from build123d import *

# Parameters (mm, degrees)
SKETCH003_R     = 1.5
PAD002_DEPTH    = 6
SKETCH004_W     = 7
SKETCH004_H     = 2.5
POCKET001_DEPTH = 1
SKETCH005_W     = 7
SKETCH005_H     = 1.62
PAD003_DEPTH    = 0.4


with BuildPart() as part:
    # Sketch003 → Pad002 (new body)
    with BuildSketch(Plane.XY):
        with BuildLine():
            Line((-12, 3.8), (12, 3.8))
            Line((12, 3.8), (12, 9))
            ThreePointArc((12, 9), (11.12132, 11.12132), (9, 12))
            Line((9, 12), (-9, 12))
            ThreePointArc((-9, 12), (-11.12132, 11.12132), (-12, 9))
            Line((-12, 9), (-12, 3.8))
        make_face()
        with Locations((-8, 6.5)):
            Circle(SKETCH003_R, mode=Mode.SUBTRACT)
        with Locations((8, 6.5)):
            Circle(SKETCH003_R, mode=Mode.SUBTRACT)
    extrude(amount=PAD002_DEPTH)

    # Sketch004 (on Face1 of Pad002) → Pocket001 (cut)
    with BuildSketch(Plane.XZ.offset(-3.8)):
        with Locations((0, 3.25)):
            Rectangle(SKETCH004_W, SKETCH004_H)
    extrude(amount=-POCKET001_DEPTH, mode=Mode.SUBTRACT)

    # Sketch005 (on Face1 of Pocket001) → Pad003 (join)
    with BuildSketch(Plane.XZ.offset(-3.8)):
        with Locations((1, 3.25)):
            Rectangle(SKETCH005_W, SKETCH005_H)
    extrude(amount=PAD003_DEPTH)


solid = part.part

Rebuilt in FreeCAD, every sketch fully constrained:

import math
import FreeCAD as App
import Part
import Sketcher
from FreeCAD import Vector
Q = App.Units.Quantity

doc = App.newDocument("Part")
body = doc.addObject("PartDesign::Body", "Body")

# Sketch on XY plane
sketch1 = body.newObject("Sketcher::SketchObject", "Sketch")
sketch1.AttachmentSupport = (doc.getObject("XY_Plane"), [""])
sketch1.MapMode = "FlatFace"
sketch1.addGeometry([
    Part.LineSegment(Vector(-12, 3.8, 0), Vector(12, 3.8, 0)),  # 0
    Part.LineSegment(Vector(12, 3.8, 0), Vector(12, 9, 0)),  # 1
    Part.ArcOfCircle(Part.Circle(Vector(8.999999, 8.999999, 0), Vector(0, 0, 1), 3.000001), math.radians(0.000022), math.radians(89.999978)),  # 2
    Part.LineSegment(Vector(9, 12, 0), Vector(-9, 12, 0)),  # 3
    Part.ArcOfCircle(Part.Circle(Vector(-8.999999, 8.999999, 0), Vector(0, 0, 1), 3.000001), math.radians(90.000022), math.radians(179.999978)),  # 4
    Part.LineSegment(Vector(-12, 9, 0), Vector(-12, 3.8, 0)),  # 5
    Part.Circle(Vector(-8, 6.5, 0), Vector(0, 0, 1), 1.5),  # 6
    Part.Circle(Vector(8, 6.5, 0), Vector(0, 0, 1), 1.5),  # 7
], False)
sketch1.addConstraint([
    Sketcher.Constraint("Coincident", 0, 2, 1, 1),
    Sketcher.Constraint("Tangent", 1, 2, 2, 1),
    Sketcher.Constraint("Tangent", 2, 2, 3, 1),
    Sketcher.Constraint("Tangent", 3, 2, 4, 1),
    Sketcher.Constraint("Tangent", 4, 2, 5, 1),
    Sketcher.Constraint("Coincident", 5, 2, 0, 1),
    Sketcher.Constraint("Horizontal", 0),
    Sketcher.Constraint("Vertical", 1),
    Sketcher.Constraint("Horizontal", 3),
    Sketcher.Constraint("Vertical", 5),
    Sketcher.Constraint("Equal", 2, 4),
    Sketcher.Constraint("Equal", 6, 7),
    Sketcher.Constraint("Symmetric", 6, 3, 7, 3, -2),
    Sketcher.Constraint("Diameter", 6, Q("3 mm")),
    Sketcher.Constraint("Radius", 2, Q("3.000001 mm")),
    Sketcher.Constraint("DistanceX", 0, 1, 0, 2, Q("24 mm")),
    Sketcher.Constraint("DistanceY", 1, 1, 1, 2, Q("5.2 mm")),
    Sketcher.Constraint("DistanceX", -1, 1, 2, 3, Q("8.999999 mm")),
    Sketcher.Constraint("DistanceY", -1, 1, 2, 3, Q("8.999999 mm")),
    Sketcher.Constraint("DistanceX", 6, 3, -1, 1, Q("8 mm")),
    Sketcher.Constraint("DistanceY", -1, 1, 6, 3, Q("6.5 mm")),
])
pad1 = body.newObject("PartDesign::Pad", "Pad")
pad1.Profile = sketch1
pad1.Length = 6

# Sketch on XZ plane
sketch2 = body.newObject("Sketcher::SketchObject", "Sketch001")
sketch2.AttachmentSupport = (doc.getObject("XZ_Plane"), [""])
sketch2.MapMode = "FlatFace"
sketch2.AttachmentOffset = App.Placement(Vector(0, 0, -3.8), App.Rotation())
sketch2.addGeometry([
    Part.LineSegment(Vector(-3.5, 4.5, 0), Vector(-3.5, 2, 0)),
    Part.LineSegment(Vector(-3.5, 2, 0), Vector(3.5, 2, 0)),
    Part.LineSegment(Vector(3.5, 2, 0), Vector(3.5, 4.5, 0)),
    Part.LineSegment(Vector(3.5, 4.5, 0), Vector(-3.5, 4.5, 0)),
], False)
sketch2.addConstraint([
    Sketcher.Constraint("Coincident", 0, 2, 1, 1),
    Sketcher.Constraint("Coincident", 1, 2, 2, 1),
    Sketcher.Constraint("Coincident", 2, 2, 3, 1),
    Sketcher.Constraint("Coincident", 3, 2, 0, 1),
    Sketcher.Constraint("Vertical", 0),
    Sketcher.Constraint("Horizontal", 1),
    Sketcher.Constraint("Vertical", 2),
    Sketcher.Constraint("Horizontal", 3),
    Sketcher.Constraint("DistanceX", 1, 1, 1, 2, Q("7 mm")),
    Sketcher.Constraint("DistanceY", 0, 2, 0, 1, Q("2.5 mm")),
    Sketcher.Constraint("DistanceY", -1, 1, 0, 2, Q("2 mm")),
    Sketcher.Constraint("DistanceX", 0, 2, -1, 1, Q("3.5 mm")),
])
pocket1 = body.newObject("PartDesign::Pocket", "Pocket")
pocket1.Profile = sketch2
pocket1.Length = 1

# Sketch on XZ plane
sketch3 = body.newObject("Sketcher::SketchObject", "Sketch002")
sketch3.AttachmentSupport = (doc.getObject("XZ_Plane"), [""])
sketch3.MapMode = "FlatFace"
sketch3.AttachmentOffset = App.Placement(Vector(0, 0, -3.8), App.Rotation())
sketch3.addGeometry([
    Part.LineSegment(Vector(-2.5, 4.06, 0), Vector(-2.5, 2.44, 0)),
    Part.LineSegment(Vector(-2.5, 2.44, 0), Vector(4.5, 2.44, 0)),
    Part.LineSegment(Vector(4.5, 2.44, 0), Vector(4.5, 4.06, 0)),
    Part.LineSegment(Vector(4.5, 4.06, 0), Vector(-2.5, 4.06, 0)),
], False)
sketch3.addConstraint([
    Sketcher.Constraint("Coincident", 0, 2, 1, 1),
    Sketcher.Constraint("Coincident", 1, 2, 2, 1),
    Sketcher.Constraint("Coincident", 2, 2, 3, 1),
    Sketcher.Constraint("Coincident", 3, 2, 0, 1),
    Sketcher.Constraint("Vertical", 0),
    Sketcher.Constraint("Horizontal", 1),
    Sketcher.Constraint("Vertical", 2),
    Sketcher.Constraint("Horizontal", 3),
    Sketcher.Constraint("DistanceX", 1, 1, 1, 2, Q("7 mm")),
    Sketcher.Constraint("DistanceY", 0, 2, 0, 1, Q("1.62 mm")),
    Sketcher.Constraint("DistanceX", 0, 2, -1, 1, Q("2.5 mm")),
    Sketcher.Constraint("DistanceY", -1, 1, 0, 2, Q("2.44 mm")),
])
pad2 = body.newObject("PartDesign::Pad", "Pad001")
pad2.Profile = sketch3
pad2.Length = 0.4

doc.recompute()
